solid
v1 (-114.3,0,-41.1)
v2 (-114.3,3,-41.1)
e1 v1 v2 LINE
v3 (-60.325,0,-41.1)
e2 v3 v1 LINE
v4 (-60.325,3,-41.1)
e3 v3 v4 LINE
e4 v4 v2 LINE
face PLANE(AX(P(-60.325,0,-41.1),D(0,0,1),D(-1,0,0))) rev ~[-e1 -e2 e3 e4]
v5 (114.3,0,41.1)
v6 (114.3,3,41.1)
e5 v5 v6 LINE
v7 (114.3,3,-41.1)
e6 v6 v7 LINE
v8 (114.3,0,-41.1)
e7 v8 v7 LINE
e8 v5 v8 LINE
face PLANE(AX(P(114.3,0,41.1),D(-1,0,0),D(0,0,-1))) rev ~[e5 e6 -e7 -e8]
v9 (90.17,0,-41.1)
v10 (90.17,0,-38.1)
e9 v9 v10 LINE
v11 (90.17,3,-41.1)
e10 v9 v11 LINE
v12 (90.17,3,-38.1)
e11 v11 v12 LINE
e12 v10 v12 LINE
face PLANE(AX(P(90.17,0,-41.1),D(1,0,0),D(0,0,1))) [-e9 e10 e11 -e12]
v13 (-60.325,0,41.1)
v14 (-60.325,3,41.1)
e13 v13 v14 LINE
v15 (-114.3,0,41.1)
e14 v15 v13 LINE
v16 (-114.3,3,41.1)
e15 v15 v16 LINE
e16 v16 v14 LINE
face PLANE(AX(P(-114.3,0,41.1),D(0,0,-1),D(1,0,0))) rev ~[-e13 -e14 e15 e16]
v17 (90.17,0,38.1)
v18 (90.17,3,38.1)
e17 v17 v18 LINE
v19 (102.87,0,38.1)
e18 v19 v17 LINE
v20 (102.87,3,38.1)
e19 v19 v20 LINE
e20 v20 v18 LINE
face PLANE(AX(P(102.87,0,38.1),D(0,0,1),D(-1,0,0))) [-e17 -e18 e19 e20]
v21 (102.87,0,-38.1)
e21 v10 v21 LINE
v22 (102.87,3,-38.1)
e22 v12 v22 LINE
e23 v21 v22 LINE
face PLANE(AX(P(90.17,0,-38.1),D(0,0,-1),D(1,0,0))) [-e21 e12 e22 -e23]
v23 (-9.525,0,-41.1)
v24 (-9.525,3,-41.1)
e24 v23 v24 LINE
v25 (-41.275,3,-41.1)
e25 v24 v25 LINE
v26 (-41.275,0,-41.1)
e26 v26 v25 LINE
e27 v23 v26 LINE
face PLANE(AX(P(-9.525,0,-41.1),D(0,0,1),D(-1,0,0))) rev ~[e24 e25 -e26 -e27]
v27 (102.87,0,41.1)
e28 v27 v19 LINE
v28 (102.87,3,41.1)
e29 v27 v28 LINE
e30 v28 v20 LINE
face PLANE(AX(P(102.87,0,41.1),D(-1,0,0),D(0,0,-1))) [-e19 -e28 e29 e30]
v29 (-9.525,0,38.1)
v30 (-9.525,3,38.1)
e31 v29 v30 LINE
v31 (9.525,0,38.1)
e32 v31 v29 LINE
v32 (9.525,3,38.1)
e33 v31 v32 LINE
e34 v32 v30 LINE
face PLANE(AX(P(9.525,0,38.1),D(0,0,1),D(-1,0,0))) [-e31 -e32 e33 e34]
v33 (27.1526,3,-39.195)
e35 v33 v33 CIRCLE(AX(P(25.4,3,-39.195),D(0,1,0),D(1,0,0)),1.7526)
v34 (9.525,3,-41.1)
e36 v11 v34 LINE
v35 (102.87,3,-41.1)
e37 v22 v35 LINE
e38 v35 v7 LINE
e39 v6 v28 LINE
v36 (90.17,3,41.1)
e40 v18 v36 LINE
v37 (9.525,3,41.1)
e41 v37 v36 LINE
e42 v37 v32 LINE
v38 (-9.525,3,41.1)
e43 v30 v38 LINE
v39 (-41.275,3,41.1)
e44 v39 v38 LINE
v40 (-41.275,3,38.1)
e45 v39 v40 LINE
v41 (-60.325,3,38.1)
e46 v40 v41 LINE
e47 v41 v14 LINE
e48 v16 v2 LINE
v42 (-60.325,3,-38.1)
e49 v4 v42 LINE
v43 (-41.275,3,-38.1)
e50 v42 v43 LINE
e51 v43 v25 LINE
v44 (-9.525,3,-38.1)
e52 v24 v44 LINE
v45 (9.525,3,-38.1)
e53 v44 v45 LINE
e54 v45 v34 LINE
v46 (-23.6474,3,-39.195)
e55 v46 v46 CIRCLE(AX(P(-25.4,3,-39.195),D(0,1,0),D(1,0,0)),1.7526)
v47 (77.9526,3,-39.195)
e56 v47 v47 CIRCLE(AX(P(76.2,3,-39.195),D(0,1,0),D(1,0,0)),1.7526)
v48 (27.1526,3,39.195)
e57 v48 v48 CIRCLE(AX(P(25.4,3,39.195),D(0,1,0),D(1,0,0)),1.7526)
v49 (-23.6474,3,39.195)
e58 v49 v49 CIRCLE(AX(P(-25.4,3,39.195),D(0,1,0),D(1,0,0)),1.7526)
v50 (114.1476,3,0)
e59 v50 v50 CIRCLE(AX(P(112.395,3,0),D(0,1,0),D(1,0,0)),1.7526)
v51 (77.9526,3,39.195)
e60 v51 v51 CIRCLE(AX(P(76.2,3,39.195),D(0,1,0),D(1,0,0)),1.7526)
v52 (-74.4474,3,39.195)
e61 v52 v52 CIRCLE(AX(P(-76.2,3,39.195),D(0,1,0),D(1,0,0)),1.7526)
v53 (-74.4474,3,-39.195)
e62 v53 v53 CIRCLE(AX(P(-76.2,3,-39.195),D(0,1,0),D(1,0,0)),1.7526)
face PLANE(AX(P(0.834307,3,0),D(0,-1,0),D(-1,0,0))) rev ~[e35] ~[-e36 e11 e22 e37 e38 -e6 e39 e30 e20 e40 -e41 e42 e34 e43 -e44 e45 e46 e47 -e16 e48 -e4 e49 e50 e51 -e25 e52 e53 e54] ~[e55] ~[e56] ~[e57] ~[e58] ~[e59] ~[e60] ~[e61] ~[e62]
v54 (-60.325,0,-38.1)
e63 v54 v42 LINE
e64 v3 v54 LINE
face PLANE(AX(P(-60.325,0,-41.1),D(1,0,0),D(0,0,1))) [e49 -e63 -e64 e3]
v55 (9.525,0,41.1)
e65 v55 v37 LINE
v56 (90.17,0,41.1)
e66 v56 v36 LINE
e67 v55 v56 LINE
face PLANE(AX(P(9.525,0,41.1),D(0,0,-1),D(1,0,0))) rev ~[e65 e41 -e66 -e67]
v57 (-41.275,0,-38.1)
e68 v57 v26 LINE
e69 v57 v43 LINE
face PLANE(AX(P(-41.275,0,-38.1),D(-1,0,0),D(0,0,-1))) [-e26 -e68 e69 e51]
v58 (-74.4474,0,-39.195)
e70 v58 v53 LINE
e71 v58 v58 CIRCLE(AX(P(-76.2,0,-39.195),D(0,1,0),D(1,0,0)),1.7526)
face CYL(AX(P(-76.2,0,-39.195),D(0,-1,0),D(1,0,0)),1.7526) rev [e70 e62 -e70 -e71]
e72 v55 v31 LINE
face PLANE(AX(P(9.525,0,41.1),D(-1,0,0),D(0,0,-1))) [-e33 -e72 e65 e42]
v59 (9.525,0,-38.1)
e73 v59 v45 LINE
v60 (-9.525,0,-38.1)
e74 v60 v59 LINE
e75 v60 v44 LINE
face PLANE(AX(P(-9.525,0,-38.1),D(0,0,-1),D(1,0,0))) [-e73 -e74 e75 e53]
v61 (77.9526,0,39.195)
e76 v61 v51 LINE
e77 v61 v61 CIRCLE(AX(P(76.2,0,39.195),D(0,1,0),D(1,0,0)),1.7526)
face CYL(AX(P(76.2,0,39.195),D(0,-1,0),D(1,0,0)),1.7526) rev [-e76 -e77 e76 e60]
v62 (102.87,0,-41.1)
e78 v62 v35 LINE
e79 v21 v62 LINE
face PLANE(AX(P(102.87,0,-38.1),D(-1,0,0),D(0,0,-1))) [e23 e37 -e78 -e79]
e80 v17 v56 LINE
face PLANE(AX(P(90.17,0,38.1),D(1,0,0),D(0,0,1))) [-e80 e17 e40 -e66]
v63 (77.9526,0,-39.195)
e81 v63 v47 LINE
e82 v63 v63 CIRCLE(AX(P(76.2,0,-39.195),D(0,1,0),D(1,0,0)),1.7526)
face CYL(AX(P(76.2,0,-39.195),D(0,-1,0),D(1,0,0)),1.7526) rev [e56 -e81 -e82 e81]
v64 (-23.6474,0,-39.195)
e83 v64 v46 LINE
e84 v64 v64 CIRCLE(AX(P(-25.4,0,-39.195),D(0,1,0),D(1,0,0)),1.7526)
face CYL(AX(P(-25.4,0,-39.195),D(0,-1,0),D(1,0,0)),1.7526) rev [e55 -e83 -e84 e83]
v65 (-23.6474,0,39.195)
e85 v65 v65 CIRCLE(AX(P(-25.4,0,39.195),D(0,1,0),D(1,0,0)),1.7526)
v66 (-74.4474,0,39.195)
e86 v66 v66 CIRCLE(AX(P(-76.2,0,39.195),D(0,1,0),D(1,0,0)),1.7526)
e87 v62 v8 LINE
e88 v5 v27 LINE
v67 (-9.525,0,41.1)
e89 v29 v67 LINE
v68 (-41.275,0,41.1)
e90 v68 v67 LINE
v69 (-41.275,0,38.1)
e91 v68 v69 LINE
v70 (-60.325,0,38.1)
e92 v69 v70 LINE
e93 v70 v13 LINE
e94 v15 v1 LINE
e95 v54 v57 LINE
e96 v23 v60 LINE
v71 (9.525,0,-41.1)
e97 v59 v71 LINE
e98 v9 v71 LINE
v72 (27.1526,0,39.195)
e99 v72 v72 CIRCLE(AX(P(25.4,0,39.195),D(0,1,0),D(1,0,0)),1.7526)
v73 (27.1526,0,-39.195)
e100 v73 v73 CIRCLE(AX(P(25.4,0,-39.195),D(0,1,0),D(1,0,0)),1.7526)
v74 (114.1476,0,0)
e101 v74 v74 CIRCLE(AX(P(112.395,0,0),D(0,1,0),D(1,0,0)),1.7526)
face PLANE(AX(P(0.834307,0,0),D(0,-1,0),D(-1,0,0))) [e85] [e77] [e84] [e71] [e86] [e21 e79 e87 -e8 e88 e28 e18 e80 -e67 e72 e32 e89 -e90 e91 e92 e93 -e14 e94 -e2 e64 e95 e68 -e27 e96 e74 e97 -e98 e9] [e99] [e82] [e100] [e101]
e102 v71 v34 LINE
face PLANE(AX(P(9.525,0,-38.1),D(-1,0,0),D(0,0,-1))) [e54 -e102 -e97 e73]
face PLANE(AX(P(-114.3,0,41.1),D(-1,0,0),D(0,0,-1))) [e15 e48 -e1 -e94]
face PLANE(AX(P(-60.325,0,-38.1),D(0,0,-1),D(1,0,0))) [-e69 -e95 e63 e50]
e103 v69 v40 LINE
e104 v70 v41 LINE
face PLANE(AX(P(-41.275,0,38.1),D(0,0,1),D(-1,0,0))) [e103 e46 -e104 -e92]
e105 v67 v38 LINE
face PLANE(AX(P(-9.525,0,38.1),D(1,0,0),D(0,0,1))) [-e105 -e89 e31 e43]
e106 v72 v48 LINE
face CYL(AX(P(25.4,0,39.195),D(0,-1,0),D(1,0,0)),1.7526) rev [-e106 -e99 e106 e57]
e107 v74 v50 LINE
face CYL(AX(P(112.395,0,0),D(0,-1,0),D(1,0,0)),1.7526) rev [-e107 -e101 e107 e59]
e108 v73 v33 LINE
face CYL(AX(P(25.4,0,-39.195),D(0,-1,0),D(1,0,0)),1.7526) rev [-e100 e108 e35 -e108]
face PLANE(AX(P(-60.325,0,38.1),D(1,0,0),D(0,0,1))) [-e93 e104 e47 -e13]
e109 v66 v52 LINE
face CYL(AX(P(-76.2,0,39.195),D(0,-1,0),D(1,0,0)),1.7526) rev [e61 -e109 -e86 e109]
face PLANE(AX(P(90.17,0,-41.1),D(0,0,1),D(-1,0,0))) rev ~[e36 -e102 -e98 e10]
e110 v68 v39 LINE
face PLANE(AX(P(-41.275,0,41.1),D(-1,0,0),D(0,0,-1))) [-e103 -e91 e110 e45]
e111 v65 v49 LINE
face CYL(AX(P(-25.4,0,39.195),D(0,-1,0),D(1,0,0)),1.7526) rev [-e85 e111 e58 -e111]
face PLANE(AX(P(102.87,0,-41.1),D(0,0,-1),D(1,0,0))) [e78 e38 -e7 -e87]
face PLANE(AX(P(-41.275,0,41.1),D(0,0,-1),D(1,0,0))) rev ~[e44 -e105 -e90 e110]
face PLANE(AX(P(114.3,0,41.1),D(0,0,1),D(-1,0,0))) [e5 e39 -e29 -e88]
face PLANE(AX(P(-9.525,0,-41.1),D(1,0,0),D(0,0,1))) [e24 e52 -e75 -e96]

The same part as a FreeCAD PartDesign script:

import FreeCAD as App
import Part
import Sketcher
Q = App.Units.Quantity

doc = App.newDocument("Part")
body = doc.addObject("PartDesign::Body", "Body")

sketch1 = body.newObject("Sketcher::SketchObject", "Sketch")
sketch1.AttachmentSupport = (doc.getObject("XZ_Plane"), [""])
sketch1.MapMode = "FlatFace"
sketch1.addGeometry(Part.LineSegment(App.Vector(114.3, 41.1, 0), App.Vector(114.3, -41.1, 0)), False)
sketch1.addGeometry(Part.LineSegment(App.Vector(114.3, -41.1, 0), App.Vector(102.9, -41.1, 0)), False)
sketch1.addGeometry(Part.LineSegment(App.Vector(102.9, -41.1, 0), App.Vector(102.9, -38.1, 0)), False)
sketch1.addGeometry(Part.LineSegment(App.Vector(102.9, -38.1, 0), App.Vector(90.2, -38.1, 0)), False)
sketch1.addGeometry(Part.LineSegment(App.Vector(90.2, -38.1, 0), App.Vector(90.2, -41.1, 0)), False)
sketch1.addGeometry(Part.LineSegment(App.Vector(90.2, -41.1, 0), App.Vector(9.5, -41.1, 0)), False)
sketch1.addGeometry(Part.LineSegment(App.Vector(9.5, -41.1, 0), App.Vector(9.5, -38.1, 0)), False)
sketch1.addGeometry(Part.LineSegment(App.Vector(9.5, -38.1, 0), App.Vector(-9.5, -38.1, 0)), False)
sketch1.addGeometry(Part.LineSegment(App.Vector(-9.5, -38.1, 0), App.Vector(-9.5, -41.1, 0)), False)
sketch1.addGeometry(Part.LineSegment(App.Vector(-9.5, -41.1, 0), App.Vector(-41.3, -41.1, 0)), False)
sketch1.addGeometry(Part.LineSegment(App.Vector(-41.3, -41.1, 0), App.Vector(-41.3, -38.1, 0)), False)
sketch1.addGeometry(Part.LineSegment(App.Vector(-41.3, -38.1, 0), App.Vector(-60.3, -38.1, 0)), False)
sketch1.addGeometry(Part.LineSegment(App.Vector(-60.3, -38.1, 0), App.Vector(-60.3, -41.1, 0)), False)
sketch1.addGeometry(Part.LineSegment(App.Vector(-60.3, -41.1, 0), App.Vector(-114.3, -41.1, 0)), False)
sketch1.addGeometry(Part.LineSegment(App.Vector(-114.3, -41.1, 0), App.Vector(-114.3, 41.1, 0)), False)
sketch1.addGeometry(Part.LineSegment(App.Vector(-114.3, 41.1, 0), App.Vector(-60.3, 41.1, 0)), False)
sketch1.addGeometry(Part.LineSegment(App.Vector(-60.3, 41.1, 0), App.Vector(-60.3, 38.1, 0)), False)
sketch1.addGeometry(Part.LineSegment(App.Vector(-60.3, 38.1, 0), App.Vector(-41.3, 38.1, 0)), False)
sketch1.addGeometry(Part.LineSegment(App.Vector(-41.3, 38.1, 0), App.Vector(-41.3, 41.1, 0)), False)
sketch1.addGeometry(Part.LineSegment(App.Vector(-41.3, 41.1, 0), App.Vector(-9.5, 41.1, 0)), False)
sketch1.addGeometry(Part.LineSegment(App.Vector(-9.5, 41.1, 0), App.Vector(-9.5, 38.1, 0)), False)
sketch1.addGeometry(Part.LineSegment(App.Vector(-9.5, 38.1, 0), App.Vector(9.5, 38.1, 0)), False)
sketch1.addGeometry(Part.LineSegment(App.Vector(9.5, 38.1, 0), App.Vector(9.5, 41.1, 0)), False)
sketch1.addGeometry(Part.LineSegment(App.Vector(9.5, 41.1, 0), App.Vector(90.2, 41.1, 0)), False)
sketch1.addGeometry(Part.LineSegment(App.Vector(90.2, 41.1, 0), App.Vector(90.2, 38.1, 0)), False)
sketch1.addGeometry(Part.LineSegment(App.Vector(90.2, 38.1, 0), App.Vector(102.9, 38.1, 0)), False)
sketch1.addGeometry(Part.LineSegment(App.Vector(102.9, 38.1, 0), App.Vector(102.9, 41.1, 0)), False)
sketch1.addGeometry(Part.LineSegment(App.Vector(102.9, 41.1, 0), App.Vector(114.3, 41.1, 0)), False)
sketch1.addGeometry(Part.Circle(App.Vector(76.2, 39.2, 0), App.Vector(0, 0, 1), 1.8), False)
sketch1.addGeometry(Part.Circle(App.Vector(25.4, 39.2, 0), App.Vector(0, 0, 1), 1.8), False)
sketch1.addGeometry(Part.Circle(App.Vector(-25.4, 39.2, 0), App.Vector(0, 0, 1), 1.8), False)
sketch1.addGeometry(Part.Circle(App.Vector(-76.2, 39.2, 0), App.Vector(0, 0, 1), 1.8), False)
sketch1.addGeometry(Part.Circle(App.Vector(112.4, 0, 0), App.Vector(0, 0, 1), 1.8), False)
sketch1.addGeometry(Part.Circle(App.Vector(76.2, -39.2, 0), App.Vector(0, 0, 1), 1.8), False)
sketch1.addGeometry(Part.Circle(App.Vector(25.4, -39.2, 0), App.Vector(0, 0, 1), 1.8), False)
sketch1.addGeometry(Part.Circle(App.Vector(-25.4, -39.2, 0), App.Vector(0, 0, 1), 1.8), False)
sketch1.addGeometry(Part.Circle(App.Vector(-76.2, -39.2, 0), App.Vector(0, 0, 1), 1.8), False)
sketch1.addConstraint(Sketcher.Constraint("Coincident", 0, 2, 1, 1))
sketch1.addConstraint(Sketcher.Constraint("Coincident", 1, 2, 2, 1))
sketch1.addConstraint(Sketcher.Constraint("Coincident", 2, 2, 3, 1))
sketch1.addConstraint(Sketcher.Constraint("Coincident", 3, 2, 4, 1))
sketch1.addConstraint(Sketcher.Constraint("Coincident", 4, 2, 5, 1))
sketch1.addConstraint(Sketcher.Constraint("Coincident", 5, 2, 6, 1))
sketch1.addConstraint(Sketcher.Constraint("Coincident", 6, 2, 7, 1))
sketch1.addConstraint(Sketcher.Constraint("Coincident", 7, 2, 8, 1))
sketch1.addConstraint(Sketcher.Constraint("Coincident", 8, 2, 9, 1))
sketch1.addConstraint(Sketcher.Constraint("Coincident", 9, 2, 10, 1))
sketch1.addConstraint(Sketcher.Constraint("Coincident", 10, 2, 11, 1))
sketch1.addConstraint(Sketcher.Constraint("Coincident", 11, 2, 12, 1))
sketch1.addConstraint(Sketcher.Constraint("Coincident", 12, 2, 13, 1))
sketch1.addConstraint(Sketcher.Constraint("Coincident", 13, 2, 14, 1))
sketch1.addConstraint(Sketcher.Constraint("Coincident", 14, 2, 15, 1))
sketch1.addConstraint(Sketcher.Constraint("Coincident", 15, 2, 16, 1))
sketch1.addConstraint(Sketcher.Constraint("Coincident", 16, 2, 17, 1))
sketch1.addConstraint(Sketcher.Constraint("Coincident", 17, 2, 18, 1))
sketch1.addConstraint(Sketcher.Constraint("Coincident", 18, 2, 19, 1))
sketch1.addConstraint(Sketcher.Constraint("Coincident", 19, 2, 20, 1))
sketch1.addConstraint(Sketcher.Constraint("Coincident", 20, 2, 21, 1))
sketch1.addConstraint(Sketcher.Constraint("Coincident", 21, 2, 22, 1))
sketch1.addConstraint(Sketcher.Constraint("Coincident", 22, 2, 23, 1))
sketch1.addConstraint(Sketcher.Constraint("Coincident", 23, 2, 24, 1))
sketch1.addConstraint(Sketcher.Constraint("Coincident", 24, 2, 25, 1))
sketch1.addConstraint(Sketcher.Constraint("Coincident", 25, 2, 26, 1))
sketch1.addConstraint(Sketcher.Constraint("Coincident", 26, 2, 27, 1))
sketch1.addConstraint(Sketcher.Constraint("Coincident", 27, 2, 0, 1))
sketch1.addConstraint(Sketcher.Constraint("Vertical", 0))
sketch1.addConstraint(Sketcher.Constraint("Horizontal", 1))
sketch1.addConstraint(Sketcher.Constraint("Vertical", 2))
sketch1.addConstraint(Sketcher.Constraint("Horizontal", 3))
sketch1.addConstraint(Sketcher.Constraint("Vertical", 4))
sketch1.addConstraint(Sketcher.Constraint("Horizontal", 5))
sketch1.addConstraint(Sketcher.Constraint("Vertical", 6))
sketch1.addConstraint(Sketcher.Constraint("Horizontal", 7))
sketch1.addConstraint(Sketcher.Constraint("Vertical", 8))
sketch1.addConstraint(Sketcher.Constraint("Horizontal", 9))
sketch1.addConstraint(Sketcher.Constraint("Vertical", 10))
sketch1.addConstraint(Sketcher.Constraint("Horizontal", 11))
sketch1.addConstraint(Sketcher.Constraint("Vertical", 12))
sketch1.addConstraint(Sketcher.Constraint("Horizontal", 13))
sketch1.addConstraint(Sketcher.Constraint("Vertical", 14))
sketch1.addConstraint(Sketcher.Constraint("Horizontal", 15))
sketch1.addConstraint(Sketcher.Constraint("Vertical", 16))
sketch1.addConstraint(Sketcher.Constraint("Horizontal", 17))
sketch1.addConstraint(Sketcher.Constraint("Vertical", 18))
sketch1.addConstraint(Sketcher.Constraint("Horizontal", 19))
sketch1.addConstraint(Sketcher.Constraint("Vertical", 20))
sketch1.addConstraint(Sketcher.Constraint("Horizontal", 21))
sketch1.addConstraint(Sketcher.Constraint("Vertical", 22))
sketch1.addConstraint(Sketcher.Constraint("Horizontal", 23))
sketch1.addConstraint(Sketcher.Constraint("Vertical", 24))
sketch1.addConstraint(Sketcher.Constraint("Horizontal", 25))
sketch1.addConstraint(Sketcher.Constraint("Vertical", 26))
sketch1.addConstraint(Sketcher.Constraint("Horizontal", 27))
sketch1.addConstraint(Sketcher.Constraint("Equal", 28, 29))
sketch1.addConstraint(Sketcher.Constraint("Equal", 29, 30))
sketch1.addConstraint(Sketcher.Constraint("Equal", 30, 31))
sketch1.addConstraint(Sketcher.Constraint("Equal", 31, 32))
sketch1.addConstraint(Sketcher.Constraint("Equal", 32, 33))
sketch1.addConstraint(Sketcher.Constraint("Equal", 33, 34))
sketch1.addConstraint(Sketcher.Constraint("Equal", 34, 35))
sketch1.addConstraint(Sketcher.Constraint("Equal", 35, 36))
sketch1.addConstraint(Sketcher.Constraint("Symmetric", 31, 3, 33, 3, -1, 1))
sketch1.addConstraint(Sketcher.Constraint("Symmetric", 30, 3, 34, 3, -1, 1))
sketch1.addConstraint(Sketcher.Constraint("Symmetric", 29, 3, 35, 3, -1, 1))
sketch1.addConstraint(Sketcher.Constraint("Symmetric", 28, 3, 36, 3, -1, 1))
sketch1.addConstraint(Sketcher.Constraint("Symmetric", 0, 2, 14, 2, -1, 1))
sketch1.addConstraint(Sketcher.Constraint("Symmetric", 5, 2, 19, 2, -1, 1))
sketch1.addConstraint(Sketcher.Constraint("Symmetric", 7, 2, 21, 2, -1, 1))
sketch1.addConstraint(Sketcher.Constraint("Symmetric", 29, 3, 30, 3, -2))
sketch1.addConstraint(Sketcher.Constraint("Symmetric", 28, 3, 31, 3, -2))
sketch1.addConstraint(Sketcher.Constraint("Symmetric", 5, 2, 8, 2, -2))
sketch1.addConstraint(Sketcher.Constraint("Symmetric", 12, 2, 15, 2, -1))
sketch1.addConstraint(Sketcher.Constraint("Symmetric", 10, 2, 17, 2, -1))
sketch1.addConstraint(Sketcher.Constraint("Symmetric", 4, 2, 23, 2, -1))
sketch1.addConstraint(Sketcher.Constraint("Symmetric", 2, 2, 25, 2, -1))
sketch1.addConstraint(Sketcher.Constraint("PointOnObject", 32, 3, -1))
sketch1.addConstraint(Sketcher.Constraint("Horizontal", 28, 3, 29, 3))
sketch1.addConstraint(Sketcher.Constraint("Horizontal", 1, 2, 4, 2))
sketch1.addConstraint(Sketcher.Constraint("Horizontal", 3, 2, 6, 2))
sketch1.addConstraint(Sketcher.Constraint("Horizontal", 7, 2, 10, 2))
sketch1.addConstraint(Sketcher.Constraint("Horizontal", 23, 2, 26, 2))
sketch1.addConstraint(Sketcher.Constraint("Equal", 7, 11))
sketch1.addConstraint(Sketcher.Constraint("Diameter", 28, Q("0.138 in")))
sketch1.addConstraint(Sketcher.Constraint("DistanceX", 3, 2, 3, 1, Q("0.5 in")))
sketch1.addConstraint(Sketcher.Constraint("DistanceX", -1, 1, 28, 3, Q("3 in")))
sketch1.addConstraint(Sketcher.Constraint("DistanceX", -1, 1, 29, 3, Q("1 in")))
sketch1.addConstraint(Sketcher.Constraint("DistanceX", 9, 2, 5, 2, Q("2 in")))
sketch1.addConstraint(Sketcher.Constraint("DistanceY", 11, 2, 16, 2, Q("3 in")))
sketch1.addConstraint(Sketcher.Constraint("DistanceX", 1, 2, 1, 1, Q("0.45 in")))
sketch1.addConstraint(Sketcher.Constraint("DistanceX", 7, 2, 7, 1, Q("0.75 in")))
sketch1.addConstraint(Sketcher.Constraint("DistanceX", -1, 1, 0, 2, Q("4.5 in")))
sketch1.addConstraint(Sketcher.Constraint("DistanceX", -1, 1, 32, 3, Q("4.425 in")))
sketch1.addConstraint(Sketcher.Constraint("DistanceY", 0, 2, 33, 3, Q("0.075 in")))
sketch1.addConstraint(Sketcher.Constraint("DistanceY", 0, 2, 0, 1, 82.2))
pad1 = body.newObject("PartDesign::Pad", "Pad")
pad1.Profile = sketch1
pad1.Length = 3
pad1.Reversed = True

doc.recompute()
